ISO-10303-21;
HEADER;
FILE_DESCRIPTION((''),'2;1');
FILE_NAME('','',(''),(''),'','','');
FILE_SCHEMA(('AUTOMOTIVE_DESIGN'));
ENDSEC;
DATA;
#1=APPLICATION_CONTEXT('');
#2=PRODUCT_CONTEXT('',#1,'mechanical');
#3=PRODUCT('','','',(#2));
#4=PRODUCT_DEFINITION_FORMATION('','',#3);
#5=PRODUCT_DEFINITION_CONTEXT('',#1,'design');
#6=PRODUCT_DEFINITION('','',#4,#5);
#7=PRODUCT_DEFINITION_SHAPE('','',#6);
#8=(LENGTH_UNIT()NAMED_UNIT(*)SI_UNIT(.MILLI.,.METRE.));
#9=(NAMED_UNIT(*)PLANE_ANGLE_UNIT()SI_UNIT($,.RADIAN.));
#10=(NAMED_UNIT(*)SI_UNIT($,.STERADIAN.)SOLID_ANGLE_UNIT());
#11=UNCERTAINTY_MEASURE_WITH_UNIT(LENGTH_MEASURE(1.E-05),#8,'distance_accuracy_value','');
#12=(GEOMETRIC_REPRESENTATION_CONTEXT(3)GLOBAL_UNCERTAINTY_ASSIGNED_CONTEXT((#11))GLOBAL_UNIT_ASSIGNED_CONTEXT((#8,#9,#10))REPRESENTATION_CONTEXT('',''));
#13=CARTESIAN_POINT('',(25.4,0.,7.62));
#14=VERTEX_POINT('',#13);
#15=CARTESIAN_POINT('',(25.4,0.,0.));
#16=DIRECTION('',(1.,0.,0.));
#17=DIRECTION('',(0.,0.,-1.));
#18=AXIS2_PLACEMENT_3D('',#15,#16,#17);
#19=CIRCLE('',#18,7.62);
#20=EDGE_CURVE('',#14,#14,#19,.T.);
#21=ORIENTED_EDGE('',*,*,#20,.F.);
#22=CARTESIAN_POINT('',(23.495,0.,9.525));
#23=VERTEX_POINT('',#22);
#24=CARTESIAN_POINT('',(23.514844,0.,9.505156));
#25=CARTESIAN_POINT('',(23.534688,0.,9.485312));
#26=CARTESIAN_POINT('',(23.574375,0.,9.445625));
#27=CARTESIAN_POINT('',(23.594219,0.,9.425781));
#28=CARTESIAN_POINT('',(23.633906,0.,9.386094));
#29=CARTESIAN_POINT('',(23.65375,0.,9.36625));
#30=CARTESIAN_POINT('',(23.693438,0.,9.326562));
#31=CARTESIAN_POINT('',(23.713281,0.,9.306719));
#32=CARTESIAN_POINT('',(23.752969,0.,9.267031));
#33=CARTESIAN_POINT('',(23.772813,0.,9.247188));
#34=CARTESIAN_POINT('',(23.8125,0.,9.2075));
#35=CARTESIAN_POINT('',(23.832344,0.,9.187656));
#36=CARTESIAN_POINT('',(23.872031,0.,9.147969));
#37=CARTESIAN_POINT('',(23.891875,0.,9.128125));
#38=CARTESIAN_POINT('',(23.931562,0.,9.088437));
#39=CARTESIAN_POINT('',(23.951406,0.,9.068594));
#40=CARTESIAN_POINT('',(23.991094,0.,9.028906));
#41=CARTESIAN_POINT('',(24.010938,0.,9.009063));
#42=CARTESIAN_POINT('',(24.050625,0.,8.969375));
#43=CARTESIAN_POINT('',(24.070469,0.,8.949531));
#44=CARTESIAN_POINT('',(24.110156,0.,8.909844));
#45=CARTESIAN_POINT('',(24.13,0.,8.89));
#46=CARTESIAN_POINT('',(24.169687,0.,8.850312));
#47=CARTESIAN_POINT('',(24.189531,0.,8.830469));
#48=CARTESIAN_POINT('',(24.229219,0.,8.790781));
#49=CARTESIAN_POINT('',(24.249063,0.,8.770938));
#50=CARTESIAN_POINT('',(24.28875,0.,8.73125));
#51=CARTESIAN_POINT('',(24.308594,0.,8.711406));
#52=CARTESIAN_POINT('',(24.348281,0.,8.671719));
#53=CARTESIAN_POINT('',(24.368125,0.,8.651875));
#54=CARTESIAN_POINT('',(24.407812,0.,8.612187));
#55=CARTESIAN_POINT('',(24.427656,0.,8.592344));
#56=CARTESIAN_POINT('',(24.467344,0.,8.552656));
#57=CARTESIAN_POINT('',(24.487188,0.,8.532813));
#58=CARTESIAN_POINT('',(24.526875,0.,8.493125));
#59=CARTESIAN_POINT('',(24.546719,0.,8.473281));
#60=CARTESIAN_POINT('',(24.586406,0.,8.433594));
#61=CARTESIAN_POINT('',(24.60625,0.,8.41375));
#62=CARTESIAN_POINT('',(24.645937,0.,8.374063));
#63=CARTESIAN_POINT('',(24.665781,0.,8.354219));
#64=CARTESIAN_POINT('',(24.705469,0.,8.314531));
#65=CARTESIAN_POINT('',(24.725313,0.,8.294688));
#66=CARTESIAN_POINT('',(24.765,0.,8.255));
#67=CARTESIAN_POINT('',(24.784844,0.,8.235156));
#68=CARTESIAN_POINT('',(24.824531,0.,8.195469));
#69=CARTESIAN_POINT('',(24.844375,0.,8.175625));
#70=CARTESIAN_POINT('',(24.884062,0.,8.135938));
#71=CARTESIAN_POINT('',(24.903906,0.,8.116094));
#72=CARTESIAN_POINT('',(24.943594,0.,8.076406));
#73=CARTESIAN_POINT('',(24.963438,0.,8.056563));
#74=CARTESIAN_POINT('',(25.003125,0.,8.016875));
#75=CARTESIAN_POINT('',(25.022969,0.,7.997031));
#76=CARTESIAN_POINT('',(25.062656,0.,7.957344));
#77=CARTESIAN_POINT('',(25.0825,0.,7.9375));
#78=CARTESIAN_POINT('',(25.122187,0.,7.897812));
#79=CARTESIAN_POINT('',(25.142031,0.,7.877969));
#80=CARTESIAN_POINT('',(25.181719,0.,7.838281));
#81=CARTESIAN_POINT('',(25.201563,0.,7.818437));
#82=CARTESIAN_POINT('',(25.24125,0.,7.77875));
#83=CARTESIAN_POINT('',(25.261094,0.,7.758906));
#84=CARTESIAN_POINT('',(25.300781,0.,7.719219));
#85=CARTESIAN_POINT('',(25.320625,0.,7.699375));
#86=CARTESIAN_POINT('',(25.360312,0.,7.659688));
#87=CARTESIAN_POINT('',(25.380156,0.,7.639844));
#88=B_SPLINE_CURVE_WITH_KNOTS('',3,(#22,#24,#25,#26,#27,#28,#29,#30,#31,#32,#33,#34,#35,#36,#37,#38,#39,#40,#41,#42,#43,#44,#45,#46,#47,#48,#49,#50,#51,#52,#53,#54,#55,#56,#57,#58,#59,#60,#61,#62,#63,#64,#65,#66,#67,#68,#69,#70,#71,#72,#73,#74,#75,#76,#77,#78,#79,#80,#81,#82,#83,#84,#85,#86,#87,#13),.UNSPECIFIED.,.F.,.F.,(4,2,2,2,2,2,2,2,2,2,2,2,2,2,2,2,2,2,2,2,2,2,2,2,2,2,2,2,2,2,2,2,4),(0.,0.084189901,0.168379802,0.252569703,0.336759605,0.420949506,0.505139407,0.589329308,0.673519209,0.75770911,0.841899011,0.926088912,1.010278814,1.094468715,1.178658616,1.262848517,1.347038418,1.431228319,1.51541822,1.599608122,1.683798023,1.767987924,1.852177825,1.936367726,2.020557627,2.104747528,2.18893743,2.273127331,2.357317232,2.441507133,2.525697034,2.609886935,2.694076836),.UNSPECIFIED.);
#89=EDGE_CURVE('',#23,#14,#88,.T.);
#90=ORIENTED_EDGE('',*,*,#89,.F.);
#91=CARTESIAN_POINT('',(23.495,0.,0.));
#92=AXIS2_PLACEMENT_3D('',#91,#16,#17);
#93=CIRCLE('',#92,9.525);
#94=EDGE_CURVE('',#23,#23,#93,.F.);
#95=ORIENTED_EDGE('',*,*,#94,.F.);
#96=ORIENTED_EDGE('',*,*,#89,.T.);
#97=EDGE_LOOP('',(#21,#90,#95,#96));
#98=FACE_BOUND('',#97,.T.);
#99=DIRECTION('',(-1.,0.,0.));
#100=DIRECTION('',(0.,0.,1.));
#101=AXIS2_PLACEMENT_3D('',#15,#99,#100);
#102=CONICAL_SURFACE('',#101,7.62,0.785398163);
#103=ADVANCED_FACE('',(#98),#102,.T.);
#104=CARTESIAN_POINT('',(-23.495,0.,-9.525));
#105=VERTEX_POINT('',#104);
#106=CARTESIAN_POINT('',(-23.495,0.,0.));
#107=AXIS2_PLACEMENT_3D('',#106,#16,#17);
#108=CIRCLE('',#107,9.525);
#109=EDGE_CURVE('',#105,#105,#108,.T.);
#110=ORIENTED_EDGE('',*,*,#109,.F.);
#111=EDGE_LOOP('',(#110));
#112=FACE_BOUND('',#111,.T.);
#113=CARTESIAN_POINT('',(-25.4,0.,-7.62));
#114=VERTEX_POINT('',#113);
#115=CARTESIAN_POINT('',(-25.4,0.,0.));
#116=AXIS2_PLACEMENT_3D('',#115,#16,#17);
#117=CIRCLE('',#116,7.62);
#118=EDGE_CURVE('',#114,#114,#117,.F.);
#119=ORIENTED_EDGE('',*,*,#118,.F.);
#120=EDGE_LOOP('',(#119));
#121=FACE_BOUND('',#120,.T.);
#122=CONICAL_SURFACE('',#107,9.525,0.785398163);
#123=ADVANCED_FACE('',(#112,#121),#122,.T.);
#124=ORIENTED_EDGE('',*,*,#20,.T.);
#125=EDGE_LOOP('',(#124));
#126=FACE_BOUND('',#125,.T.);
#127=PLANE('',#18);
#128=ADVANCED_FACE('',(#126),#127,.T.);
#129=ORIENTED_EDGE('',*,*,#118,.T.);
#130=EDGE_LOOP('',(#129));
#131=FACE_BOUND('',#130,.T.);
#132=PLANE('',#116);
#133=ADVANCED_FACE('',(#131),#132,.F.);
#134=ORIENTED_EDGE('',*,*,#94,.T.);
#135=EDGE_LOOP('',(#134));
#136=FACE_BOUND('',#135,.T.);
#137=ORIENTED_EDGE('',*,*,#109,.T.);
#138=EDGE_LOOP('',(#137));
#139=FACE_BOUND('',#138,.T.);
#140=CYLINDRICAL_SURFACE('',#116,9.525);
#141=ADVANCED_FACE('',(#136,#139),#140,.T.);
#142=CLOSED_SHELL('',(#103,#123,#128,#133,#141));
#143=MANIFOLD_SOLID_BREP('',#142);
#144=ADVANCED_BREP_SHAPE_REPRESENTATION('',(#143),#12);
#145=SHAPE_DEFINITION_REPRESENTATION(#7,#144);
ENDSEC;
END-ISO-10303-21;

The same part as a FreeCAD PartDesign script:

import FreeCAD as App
import Part
import Sketcher

V = App.Vector
Q = App.Units.Quantity


def edges_at(feature, points):
    """Names of the edges that pass closest to the given points."""
    edges = feature.Shape.Edges
    near = lambda p: min(range(len(edges)), key=lambda i: edges[i].distToShape(Part.Vertex(*p))[0])
    return sorted({f"Edge{near(p) + 1}" for p in points})

doc = App.newDocument("Part")
body = doc.addObject("PartDesign::Body", "Body")

# Sketch on YZ plane
sketch1 = body.newObject("Sketcher::SketchObject", "Sketch")
sketch1.AttachmentSupport = (doc.getObject("YZ_Plane"), [""])
sketch1.MapMode = "FlatFace"
sketch1.addGeometry(Part.Circle(V(0, 0, 0), V(0, 0, 1), 10), False)
sketch1.addConstraint(Sketcher.Constraint("Coincident", 0, 3, -1, 1))
sketch1.addConstraint(Sketcher.Constraint("Diameter", 0, Q("0.75 in")))
pad1 = body.newObject("PartDesign::Pad", "Pad")
pad1.Profile = sketch1
pad1.Type = "TwoLengths"
pad1.Length = Q("1 in")
pad1.Length2 = Q("1 in")
doc.recompute()

chamfer = body.newObject("PartDesign::Chamfer", "Chamfer")
chamfer.Base = (pad1, edges_at(pad1, [(-25.4, 0, 9.525), (25.4, 0, 9.525)]))
chamfer.Size = Q("0.075 in")

doc.recompute()
